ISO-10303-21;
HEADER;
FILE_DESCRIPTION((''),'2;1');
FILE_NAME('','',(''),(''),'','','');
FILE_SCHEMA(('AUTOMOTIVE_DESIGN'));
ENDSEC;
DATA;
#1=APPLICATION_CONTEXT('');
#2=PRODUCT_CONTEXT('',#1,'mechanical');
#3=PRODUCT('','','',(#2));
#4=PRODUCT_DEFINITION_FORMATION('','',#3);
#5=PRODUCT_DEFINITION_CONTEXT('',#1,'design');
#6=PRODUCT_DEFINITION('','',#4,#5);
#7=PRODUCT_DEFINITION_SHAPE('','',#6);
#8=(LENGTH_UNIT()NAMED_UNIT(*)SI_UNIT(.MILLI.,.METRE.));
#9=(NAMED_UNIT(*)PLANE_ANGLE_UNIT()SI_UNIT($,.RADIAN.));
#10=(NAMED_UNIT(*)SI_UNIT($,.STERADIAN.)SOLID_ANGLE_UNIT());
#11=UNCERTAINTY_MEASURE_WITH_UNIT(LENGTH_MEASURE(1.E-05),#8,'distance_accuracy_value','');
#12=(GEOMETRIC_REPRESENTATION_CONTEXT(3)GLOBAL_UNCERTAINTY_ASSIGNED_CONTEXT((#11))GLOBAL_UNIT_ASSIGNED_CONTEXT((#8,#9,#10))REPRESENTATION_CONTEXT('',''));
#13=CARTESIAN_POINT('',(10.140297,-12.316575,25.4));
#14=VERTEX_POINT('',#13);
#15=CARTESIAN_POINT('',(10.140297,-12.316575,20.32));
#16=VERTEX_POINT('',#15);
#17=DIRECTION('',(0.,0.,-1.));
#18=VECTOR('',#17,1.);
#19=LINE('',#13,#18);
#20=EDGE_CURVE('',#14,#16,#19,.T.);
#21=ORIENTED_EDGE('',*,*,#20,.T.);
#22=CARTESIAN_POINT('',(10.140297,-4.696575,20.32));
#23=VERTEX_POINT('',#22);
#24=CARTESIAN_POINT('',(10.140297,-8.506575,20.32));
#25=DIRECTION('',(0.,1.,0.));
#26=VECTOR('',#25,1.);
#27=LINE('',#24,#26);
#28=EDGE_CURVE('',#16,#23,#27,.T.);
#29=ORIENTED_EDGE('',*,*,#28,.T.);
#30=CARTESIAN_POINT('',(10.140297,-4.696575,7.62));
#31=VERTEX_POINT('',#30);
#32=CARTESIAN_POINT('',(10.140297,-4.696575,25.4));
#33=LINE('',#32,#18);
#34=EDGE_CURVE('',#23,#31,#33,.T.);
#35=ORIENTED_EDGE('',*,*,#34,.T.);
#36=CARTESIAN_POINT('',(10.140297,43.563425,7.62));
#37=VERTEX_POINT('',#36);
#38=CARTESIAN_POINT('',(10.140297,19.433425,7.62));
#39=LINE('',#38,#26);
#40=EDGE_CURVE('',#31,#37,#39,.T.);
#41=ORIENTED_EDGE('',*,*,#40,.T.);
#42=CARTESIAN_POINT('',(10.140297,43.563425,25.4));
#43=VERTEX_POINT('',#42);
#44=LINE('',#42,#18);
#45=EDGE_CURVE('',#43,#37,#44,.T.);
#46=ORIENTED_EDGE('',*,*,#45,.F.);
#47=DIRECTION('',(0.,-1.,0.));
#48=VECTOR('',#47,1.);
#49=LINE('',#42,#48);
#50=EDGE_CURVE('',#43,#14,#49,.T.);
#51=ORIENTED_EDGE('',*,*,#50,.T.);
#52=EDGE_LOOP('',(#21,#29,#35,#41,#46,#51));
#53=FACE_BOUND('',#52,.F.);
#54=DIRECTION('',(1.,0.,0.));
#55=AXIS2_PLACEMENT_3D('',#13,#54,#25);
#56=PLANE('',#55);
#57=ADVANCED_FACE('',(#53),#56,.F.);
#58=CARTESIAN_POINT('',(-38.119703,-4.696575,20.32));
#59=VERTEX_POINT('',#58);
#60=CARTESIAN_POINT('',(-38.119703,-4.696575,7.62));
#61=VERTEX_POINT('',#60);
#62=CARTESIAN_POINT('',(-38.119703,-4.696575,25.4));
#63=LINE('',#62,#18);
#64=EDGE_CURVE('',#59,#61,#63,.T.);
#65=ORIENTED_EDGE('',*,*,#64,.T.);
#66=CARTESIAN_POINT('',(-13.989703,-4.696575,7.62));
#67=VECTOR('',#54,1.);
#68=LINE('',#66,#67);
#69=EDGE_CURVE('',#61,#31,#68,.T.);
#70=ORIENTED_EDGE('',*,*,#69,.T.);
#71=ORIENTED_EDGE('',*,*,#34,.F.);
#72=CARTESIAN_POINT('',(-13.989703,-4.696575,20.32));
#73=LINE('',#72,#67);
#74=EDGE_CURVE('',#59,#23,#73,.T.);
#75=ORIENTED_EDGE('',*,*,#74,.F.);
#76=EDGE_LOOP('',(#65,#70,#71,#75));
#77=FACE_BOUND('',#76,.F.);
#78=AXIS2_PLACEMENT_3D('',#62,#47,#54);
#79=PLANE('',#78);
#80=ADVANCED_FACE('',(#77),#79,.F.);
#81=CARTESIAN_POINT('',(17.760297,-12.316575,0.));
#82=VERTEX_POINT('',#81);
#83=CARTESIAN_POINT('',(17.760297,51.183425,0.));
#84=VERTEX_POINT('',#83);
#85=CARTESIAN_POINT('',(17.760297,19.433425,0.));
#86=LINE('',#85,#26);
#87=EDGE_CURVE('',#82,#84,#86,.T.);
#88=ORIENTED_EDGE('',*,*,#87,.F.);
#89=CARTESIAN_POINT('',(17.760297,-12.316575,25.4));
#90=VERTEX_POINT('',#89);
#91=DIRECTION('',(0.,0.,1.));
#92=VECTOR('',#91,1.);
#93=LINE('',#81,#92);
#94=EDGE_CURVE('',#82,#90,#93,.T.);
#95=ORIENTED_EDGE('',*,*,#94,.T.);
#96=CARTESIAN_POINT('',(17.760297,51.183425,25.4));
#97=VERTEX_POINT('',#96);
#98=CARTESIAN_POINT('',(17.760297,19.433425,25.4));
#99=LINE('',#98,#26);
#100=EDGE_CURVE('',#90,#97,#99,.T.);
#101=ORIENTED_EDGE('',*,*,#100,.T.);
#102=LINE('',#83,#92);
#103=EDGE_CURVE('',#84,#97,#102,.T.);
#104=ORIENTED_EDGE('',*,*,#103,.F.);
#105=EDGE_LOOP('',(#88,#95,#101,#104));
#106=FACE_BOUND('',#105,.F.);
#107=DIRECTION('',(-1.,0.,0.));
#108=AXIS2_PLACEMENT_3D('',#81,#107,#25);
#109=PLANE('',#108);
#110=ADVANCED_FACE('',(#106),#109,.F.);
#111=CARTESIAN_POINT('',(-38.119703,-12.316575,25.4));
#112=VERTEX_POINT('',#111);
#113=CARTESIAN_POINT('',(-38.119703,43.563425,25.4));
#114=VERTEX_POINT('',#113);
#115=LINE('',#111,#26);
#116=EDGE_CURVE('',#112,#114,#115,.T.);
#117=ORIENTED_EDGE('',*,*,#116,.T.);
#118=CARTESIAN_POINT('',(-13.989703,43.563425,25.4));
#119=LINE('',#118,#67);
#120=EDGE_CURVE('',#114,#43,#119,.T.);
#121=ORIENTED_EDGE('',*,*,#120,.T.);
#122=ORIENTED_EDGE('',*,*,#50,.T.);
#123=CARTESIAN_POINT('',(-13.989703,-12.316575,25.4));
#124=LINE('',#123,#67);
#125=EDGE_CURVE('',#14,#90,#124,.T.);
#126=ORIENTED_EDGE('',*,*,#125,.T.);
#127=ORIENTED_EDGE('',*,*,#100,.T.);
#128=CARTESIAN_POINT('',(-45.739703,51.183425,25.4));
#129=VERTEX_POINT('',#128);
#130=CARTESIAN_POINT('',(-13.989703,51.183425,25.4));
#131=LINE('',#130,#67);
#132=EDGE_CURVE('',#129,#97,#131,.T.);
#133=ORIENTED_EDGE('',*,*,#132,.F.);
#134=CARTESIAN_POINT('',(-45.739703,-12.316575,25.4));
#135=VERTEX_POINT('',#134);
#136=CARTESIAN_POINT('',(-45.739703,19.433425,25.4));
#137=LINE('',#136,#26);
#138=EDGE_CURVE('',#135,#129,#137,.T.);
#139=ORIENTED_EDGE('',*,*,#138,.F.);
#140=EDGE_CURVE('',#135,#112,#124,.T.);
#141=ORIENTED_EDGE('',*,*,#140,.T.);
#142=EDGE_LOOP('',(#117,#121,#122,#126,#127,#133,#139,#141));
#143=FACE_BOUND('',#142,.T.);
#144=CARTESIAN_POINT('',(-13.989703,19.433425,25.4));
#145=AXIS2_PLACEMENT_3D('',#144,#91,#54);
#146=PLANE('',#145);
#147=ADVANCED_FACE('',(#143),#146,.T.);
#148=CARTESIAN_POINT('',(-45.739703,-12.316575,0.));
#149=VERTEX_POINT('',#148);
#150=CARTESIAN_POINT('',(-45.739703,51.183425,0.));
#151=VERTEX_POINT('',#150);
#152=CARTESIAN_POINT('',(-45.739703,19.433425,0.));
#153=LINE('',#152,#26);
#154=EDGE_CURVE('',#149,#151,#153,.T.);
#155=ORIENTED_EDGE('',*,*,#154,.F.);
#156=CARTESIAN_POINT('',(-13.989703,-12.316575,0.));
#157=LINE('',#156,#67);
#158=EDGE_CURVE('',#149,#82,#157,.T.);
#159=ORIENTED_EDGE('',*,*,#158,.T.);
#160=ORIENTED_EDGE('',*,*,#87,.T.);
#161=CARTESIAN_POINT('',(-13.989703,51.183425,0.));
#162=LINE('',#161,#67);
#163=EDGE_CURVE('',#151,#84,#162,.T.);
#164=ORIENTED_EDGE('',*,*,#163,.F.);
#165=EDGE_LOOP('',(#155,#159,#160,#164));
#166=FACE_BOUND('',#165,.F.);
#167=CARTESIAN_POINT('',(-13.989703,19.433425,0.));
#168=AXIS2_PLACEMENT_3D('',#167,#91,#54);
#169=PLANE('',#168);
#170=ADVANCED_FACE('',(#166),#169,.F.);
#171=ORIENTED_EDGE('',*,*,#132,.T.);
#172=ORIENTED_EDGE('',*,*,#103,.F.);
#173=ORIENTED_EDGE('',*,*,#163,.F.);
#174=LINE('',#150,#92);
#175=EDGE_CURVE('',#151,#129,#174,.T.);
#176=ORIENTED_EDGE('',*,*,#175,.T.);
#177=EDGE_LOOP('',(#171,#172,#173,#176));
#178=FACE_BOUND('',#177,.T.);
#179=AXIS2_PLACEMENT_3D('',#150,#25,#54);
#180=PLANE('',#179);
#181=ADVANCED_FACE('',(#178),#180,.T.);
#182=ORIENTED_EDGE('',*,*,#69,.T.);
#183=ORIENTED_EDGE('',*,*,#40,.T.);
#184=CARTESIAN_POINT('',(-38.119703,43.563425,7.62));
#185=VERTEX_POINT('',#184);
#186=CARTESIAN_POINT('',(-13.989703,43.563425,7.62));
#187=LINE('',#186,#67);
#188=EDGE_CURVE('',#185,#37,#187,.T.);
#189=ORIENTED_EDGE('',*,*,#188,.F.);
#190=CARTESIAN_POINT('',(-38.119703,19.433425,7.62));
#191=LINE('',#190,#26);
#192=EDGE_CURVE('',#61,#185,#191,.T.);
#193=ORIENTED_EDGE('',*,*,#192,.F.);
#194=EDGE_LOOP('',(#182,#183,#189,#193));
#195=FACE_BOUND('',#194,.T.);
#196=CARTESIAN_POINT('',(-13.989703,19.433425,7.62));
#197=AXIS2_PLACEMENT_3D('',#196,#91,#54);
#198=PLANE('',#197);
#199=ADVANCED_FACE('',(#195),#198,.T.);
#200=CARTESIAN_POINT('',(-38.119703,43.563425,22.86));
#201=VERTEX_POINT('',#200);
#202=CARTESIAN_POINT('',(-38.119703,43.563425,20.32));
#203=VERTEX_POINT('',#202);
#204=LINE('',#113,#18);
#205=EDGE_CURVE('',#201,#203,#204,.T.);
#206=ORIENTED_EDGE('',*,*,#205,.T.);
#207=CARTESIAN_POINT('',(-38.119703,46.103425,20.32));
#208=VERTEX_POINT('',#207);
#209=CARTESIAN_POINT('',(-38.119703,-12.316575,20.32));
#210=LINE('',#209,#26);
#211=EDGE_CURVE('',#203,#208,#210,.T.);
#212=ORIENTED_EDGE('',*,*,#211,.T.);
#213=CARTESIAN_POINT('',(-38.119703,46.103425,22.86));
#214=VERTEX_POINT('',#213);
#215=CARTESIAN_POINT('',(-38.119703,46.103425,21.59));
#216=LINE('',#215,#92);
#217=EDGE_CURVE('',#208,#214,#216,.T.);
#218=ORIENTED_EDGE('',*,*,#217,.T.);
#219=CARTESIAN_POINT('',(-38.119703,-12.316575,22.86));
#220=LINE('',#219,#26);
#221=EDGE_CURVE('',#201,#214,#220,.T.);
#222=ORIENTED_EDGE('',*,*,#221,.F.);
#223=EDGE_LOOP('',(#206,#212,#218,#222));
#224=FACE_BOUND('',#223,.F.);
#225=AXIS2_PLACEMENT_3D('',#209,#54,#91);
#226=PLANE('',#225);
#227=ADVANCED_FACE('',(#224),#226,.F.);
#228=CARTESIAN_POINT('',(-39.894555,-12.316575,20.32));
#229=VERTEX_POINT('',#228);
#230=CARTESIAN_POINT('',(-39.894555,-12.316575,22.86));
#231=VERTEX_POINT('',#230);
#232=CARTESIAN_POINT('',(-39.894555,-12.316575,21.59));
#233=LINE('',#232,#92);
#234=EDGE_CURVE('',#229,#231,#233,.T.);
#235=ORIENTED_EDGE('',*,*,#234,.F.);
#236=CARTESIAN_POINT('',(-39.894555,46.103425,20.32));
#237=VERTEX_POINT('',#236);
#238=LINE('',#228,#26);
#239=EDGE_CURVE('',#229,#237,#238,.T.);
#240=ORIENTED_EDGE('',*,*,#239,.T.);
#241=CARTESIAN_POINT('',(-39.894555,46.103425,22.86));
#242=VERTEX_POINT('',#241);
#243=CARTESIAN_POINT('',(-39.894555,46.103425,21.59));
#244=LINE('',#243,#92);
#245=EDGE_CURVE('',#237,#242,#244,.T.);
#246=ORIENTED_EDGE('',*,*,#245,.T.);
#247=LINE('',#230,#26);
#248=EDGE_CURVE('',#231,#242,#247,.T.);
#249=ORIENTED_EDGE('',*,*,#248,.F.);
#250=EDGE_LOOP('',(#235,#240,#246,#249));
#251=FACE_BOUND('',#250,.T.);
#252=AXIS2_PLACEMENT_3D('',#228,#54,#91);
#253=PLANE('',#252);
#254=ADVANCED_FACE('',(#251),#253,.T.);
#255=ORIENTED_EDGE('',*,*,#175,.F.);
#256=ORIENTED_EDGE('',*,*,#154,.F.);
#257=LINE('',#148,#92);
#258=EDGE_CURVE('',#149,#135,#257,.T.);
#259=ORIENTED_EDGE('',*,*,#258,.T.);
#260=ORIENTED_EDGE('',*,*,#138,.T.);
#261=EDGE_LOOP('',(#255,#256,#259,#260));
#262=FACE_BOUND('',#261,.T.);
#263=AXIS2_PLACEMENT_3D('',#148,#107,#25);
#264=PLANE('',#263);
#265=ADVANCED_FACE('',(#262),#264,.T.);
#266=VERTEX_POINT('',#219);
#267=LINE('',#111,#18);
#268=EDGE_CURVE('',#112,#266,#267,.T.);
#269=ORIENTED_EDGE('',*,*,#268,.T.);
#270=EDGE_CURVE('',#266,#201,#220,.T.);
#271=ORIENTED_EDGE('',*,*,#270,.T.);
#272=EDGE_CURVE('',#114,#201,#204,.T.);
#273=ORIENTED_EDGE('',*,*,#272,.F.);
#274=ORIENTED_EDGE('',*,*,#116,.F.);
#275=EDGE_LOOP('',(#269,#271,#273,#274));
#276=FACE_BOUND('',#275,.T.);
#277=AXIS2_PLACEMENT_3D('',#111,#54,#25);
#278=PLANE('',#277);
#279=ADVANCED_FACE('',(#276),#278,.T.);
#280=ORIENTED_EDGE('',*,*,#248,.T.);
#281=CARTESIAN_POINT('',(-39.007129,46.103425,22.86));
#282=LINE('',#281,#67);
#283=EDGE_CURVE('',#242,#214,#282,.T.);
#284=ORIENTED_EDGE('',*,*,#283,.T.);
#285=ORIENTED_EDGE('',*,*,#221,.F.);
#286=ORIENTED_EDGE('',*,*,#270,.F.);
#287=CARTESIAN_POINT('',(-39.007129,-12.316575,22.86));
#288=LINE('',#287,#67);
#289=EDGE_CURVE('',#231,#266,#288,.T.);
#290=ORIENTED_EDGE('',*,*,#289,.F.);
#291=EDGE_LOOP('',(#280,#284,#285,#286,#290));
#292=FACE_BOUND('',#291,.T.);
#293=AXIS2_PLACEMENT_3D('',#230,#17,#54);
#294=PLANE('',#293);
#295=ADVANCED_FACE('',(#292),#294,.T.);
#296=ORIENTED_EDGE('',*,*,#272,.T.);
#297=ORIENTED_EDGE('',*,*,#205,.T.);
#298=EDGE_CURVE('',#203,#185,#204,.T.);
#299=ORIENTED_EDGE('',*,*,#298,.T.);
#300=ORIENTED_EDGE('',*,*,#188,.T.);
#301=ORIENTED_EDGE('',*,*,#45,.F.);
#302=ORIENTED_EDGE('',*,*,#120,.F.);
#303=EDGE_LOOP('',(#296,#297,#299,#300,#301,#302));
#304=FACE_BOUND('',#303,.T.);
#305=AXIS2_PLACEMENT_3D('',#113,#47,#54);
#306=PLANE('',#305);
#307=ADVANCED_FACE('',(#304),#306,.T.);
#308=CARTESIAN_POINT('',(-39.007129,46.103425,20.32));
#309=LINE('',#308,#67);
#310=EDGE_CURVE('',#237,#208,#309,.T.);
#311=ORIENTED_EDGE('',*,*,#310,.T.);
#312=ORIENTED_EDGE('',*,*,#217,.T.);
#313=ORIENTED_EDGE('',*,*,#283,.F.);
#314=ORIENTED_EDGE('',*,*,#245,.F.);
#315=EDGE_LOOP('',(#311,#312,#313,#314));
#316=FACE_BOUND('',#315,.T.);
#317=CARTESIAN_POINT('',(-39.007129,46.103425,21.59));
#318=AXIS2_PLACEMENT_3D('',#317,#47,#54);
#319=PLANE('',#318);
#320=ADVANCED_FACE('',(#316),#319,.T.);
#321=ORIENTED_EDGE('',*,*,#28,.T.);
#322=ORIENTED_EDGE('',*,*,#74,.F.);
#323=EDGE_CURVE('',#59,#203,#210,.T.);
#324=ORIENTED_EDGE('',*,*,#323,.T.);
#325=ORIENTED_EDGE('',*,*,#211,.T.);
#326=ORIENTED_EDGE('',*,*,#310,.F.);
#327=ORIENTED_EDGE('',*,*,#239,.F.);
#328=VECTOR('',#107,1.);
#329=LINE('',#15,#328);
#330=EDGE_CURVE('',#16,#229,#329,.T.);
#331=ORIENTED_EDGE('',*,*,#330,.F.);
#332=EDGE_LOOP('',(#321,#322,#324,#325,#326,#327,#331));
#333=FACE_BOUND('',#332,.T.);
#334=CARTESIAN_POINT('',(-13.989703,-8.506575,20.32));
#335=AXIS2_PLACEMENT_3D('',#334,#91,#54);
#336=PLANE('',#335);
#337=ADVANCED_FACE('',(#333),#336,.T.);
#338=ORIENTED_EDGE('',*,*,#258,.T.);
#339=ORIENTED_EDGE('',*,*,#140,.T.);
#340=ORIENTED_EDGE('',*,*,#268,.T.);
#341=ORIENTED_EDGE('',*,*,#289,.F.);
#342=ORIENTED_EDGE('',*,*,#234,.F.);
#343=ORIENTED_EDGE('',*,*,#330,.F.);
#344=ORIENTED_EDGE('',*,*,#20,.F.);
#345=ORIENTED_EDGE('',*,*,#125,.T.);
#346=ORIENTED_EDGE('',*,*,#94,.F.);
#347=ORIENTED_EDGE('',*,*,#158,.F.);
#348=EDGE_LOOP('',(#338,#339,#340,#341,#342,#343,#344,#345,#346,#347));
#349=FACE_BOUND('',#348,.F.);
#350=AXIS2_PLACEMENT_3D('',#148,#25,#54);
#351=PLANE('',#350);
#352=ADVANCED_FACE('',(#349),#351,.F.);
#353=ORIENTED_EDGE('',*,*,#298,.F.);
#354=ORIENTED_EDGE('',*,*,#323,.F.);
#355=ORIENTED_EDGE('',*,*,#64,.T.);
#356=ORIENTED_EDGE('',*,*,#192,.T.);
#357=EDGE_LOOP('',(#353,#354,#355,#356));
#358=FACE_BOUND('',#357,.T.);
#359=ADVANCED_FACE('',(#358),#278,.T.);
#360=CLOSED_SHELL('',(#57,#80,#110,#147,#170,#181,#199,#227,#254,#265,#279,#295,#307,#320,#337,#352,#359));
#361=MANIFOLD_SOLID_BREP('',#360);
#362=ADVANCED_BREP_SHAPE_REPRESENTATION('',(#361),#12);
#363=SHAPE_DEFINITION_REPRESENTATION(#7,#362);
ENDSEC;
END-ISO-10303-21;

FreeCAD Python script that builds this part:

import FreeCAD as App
import Part
import Sketcher

V = App.Vector
Q = App.Units.Quantity

doc = App.newDocument("Part")
body = doc.addObject("PartDesign::Body", "Body")

sketch1 = body.newObject("Sketcher::SketchObject", "Sketch")
sketch1.AttachmentSupport = (doc.getObject("XY_Plane"), [""])
sketch1.MapMode = "FlatFace"
sketch1.addGeometry(Part.LineSegment(V(-45.739703, 51.183425, 0), V(-45.739703, -12.316575, 0)), False)
sketch1.addGeometry(Part.LineSegment(V(-45.739703, -12.316575, 0), V(17.760297, -12.316575, 0)), False)
sketch1.addGeometry(Part.LineSegment(V(17.760297, -12.316575, 0), V(17.760297, 51.183425, 0)), False)
sketch1.addGeometry(Part.LineSegment(V(17.760297, 51.183425, 0), V(-45.739703, 51.183425, 0)), False)
sketch1.addConstraint(Sketcher.Constraint("Coincident", 0, 2, 1, 1))
sketch1.addConstraint(Sketcher.Constraint("Coincident", 1, 2, 2, 1))
sketch1.addConstraint(Sketcher.Constraint("Coincident", 2, 2, 3, 1))
sketch1.addConstraint(Sketcher.Constraint("Coincident", 3, 2, 0, 1))
sketch1.addConstraint(Sketcher.Constraint("Vertical", 0))
sketch1.addConstraint(Sketcher.Constraint("Horizontal", 1))
sketch1.addConstraint(Sketcher.Constraint("Vertical", 2))
sketch1.addConstraint(Sketcher.Constraint("Horizontal", 3))
sketch1.addConstraint(Sketcher.Constraint("Equal", 3, 0))
sketch1.addConstraint(Sketcher.Constraint("DistanceX", 1, 1, 1, 2, Q("2.5 in")))
sketch1.addConstraint(Sketcher.Constraint("DistanceX", 0, 2, -1, 1, 45.739703))
sketch1.addConstraint(Sketcher.Constraint("DistanceY", 0, 2, -1, 1, 12.316575))
pad1 = body.newObject("PartDesign::Pad", "Pad")
pad1.Profile = sketch1
pad1.Length = Q("1 in")

sketch2 = body.newObject("Sketcher::SketchObject", "Sketch001")
sketch2.AttachmentSupport = (doc.getObject("XY_Plane"), [""])
sketch2.MapMode = "FlatFace"
sketch2.AttachmentOffset = App.Placement(V(0, 0, 1 * 25.4), App.Rotation())
sketch2.addGeometry(Part.LineSegment(V(-38.119703, 43.563425, 0), V(-38.119703, -4.696575, 0)), False)
sketch2.addGeometry(Part.LineSegment(V(-38.119703, -4.696575, 0), V(10.140297, -4.696575, 0)), False)
sketch2.addGeometry(Part.LineSegment(V(10.140297, -4.696575, 0), V(10.140297, 43.563425, 0)), False)
sketch2.addGeometry(Part.LineSegment(V(10.140297, 43.563425, 0), V(-38.119703, 43.563425, 0)), False)
sketch2.addConstraint(Sketcher.Constraint("Coincident", 0, 2, 1, 1))
sketch2.addConstraint(Sketcher.Constraint("Coincident", 1, 2, 2, 1))
sketch2.addConstraint(Sketcher.Constraint("Coincident", 2, 2, 3, 1))
sketch2.addConstraint(Sketcher.Constraint("Coincident", 3, 2, 0, 1))
sketch2.addConstraint(Sketcher.Constraint("Vertical", 0))
sketch2.addConstraint(Sketcher.Constraint("Horizontal", 1))
sketch2.addConstraint(Sketcher.Constraint("Vertical", 2))
sketch2.addConstraint(Sketcher.Constraint("Horizontal", 3))
sketch2.addConstraint(Sketcher.Constraint("Equal", 3, 0))
sketch2.addConstraint(Sketcher.Constraint("DistanceX", 1, 1, 1, 2, Q("1.9 in")))
sketch2.addConstraint(Sketcher.Constraint("DistanceX", 0, 2, -1, 1, 38.119703))
sketch2.addConstraint(Sketcher.Constraint("DistanceY", 0, 2, -1, 1, 4.696575))
pocket1 = body.newObject("PartDesign::Pocket", "Pocket")
pocket1.Profile = sketch2
pocket1.Length = Q("0.7 in")

sketch3 = body.newObject("Sketcher::SketchObject", "Sketch002")
sketch3.AttachmentSupport = (doc.getObject("XY_Plane"), [""])
sketch3.MapMode = "FlatFace"
sketch3.AttachmentOffset = App.Placement(V(0, 0, 1 * 25.4), App.Rotation())
sketch3.addGeometry(Part.LineSegment(V(-38.119703, -4.696575, 0), V(-38.119703, -12.316575, 0)), False)
sketch3.addGeometry(Part.LineSegment(V(-38.119703, -12.316575, 0), V(10.140297, -12.316575, 0)), False)
sketch3.addGeometry(Part.LineSegment(V(10.140297, -12.316575, 0), V(10.140297, -4.696575, 0)), False)
sketch3.addGeometry(Part.LineSegment(V(10.140297, -4.696575, 0), V(-38.119703, -4.696575, 0)), False)
sketch3.addConstraint(Sketcher.Constraint("Coincident", 0, 2, 1, 1))
sketch3.addConstraint(Sketcher.Constraint("Coincident", 1, 2, 2, 1))
sketch3.addConstraint(Sketcher.Constraint("Coincident", 2, 2, 3, 1))
sketch3.addConstraint(Sketcher.Constraint("Coincident", 3, 2, 0, 1))
sketch3.addConstraint(Sketcher.Constraint("Vertical", 0))
sketch3.addConstraint(Sketcher.Constraint("Horizontal", 1))
sketch3.addConstraint(Sketcher.Constraint("Vertical", 2))
sketch3.addConstraint(Sketcher.Constraint("Horizontal", 3))
sketch3.addConstraint(Sketcher.Constraint("DistanceX", 1, 1, 1, 2, Q("1.9 in")))
sketch3.addConstraint(Sketcher.Constraint("DistanceY", 0, 2, 0, 1, Q("0.3 in")))
sketch3.addConstraint(Sketcher.Constraint("DistanceX", 0, 2, -1, 1, 38.119703))
sketch3.addConstraint(Sketcher.Constraint("DistanceY", 0, 2, -1, 1, 12.316575))
pocket2 = body.newObject("PartDesign::Pocket", "Pocket001")
pocket2.Profile = sketch3
pocket2.Length = Q("0.2 in")

sketch4 = body.newObject("Sketcher::SketchObject", "Sketch003")
sketch4.AttachmentSupport = (doc.getObject("XZ_Plane"), [""])
sketch4.MapMode = "FlatFace"
sketch4.AttachmentOffset = App.Placement(V(0, 0, 12.316575), App.Rotation())
sketch4.addGeometry(Part.LineSegment(V(-39.894555, 22.86, 0), V(-39.894555, 20.32, 0)), False)
sketch4.addGeometry(Part.LineSegment(V(-39.894555, 20.32, 0), V(-38.119703, 20.32, 0)), False)
sketch4.addGeometry(Part.LineSegment(V(-38.119703, 20.32, 0), V(-38.119703, 22.86, 0)), False)
sketch4.addGeometry(Part.LineSegment(V(-38.119703, 22.86, 0), V(-39.894555, 22.86, 0)), False)
sketch4.addConstraint(Sketcher.Constraint("Coincident", 0, 2, 1, 1))
sketch4.addConstraint(Sketcher.Constraint("Coincident", 1, 2, 2, 1))
sketch4.addConstraint(Sketcher.Constraint("Coincident", 2, 2, 3, 1))
sketch4.addConstraint(Sketcher.Constraint("Coincident", 3, 2, 0, 1))
sketch4.addConstraint(Sketcher.Constraint("Vertical", 0))
sketch4.addConstraint(Sketcher.Constraint("Horizontal", 1))
sketch4.addConstraint(Sketcher.Constraint("Vertical", 2))
sketch4.addConstraint(Sketcher.Constraint("Horizontal", 3))
sketch4.addConstraint(Sketcher.Constraint("DistanceY", 0, 2, 0, 1, Q("0.1 in")))
sketch4.addConstraint(Sketcher.Constraint("DistanceY", -1, 1, 0, 2, Q("0.8 in")))
sketch4.addConstraint(Sketcher.Constraint("DistanceX", 1, 1, 1, 2, 1.774852))
sketch4.addConstraint(Sketcher.Constraint("DistanceX", 0, 2, -1, 1, 39.894555))
pocket3 = body.newObject("PartDesign::Pocket", "Pocket002")
pocket3.Profile = sketch4
pocket3.Length = Q("2.3 in")

doc.recompute()
